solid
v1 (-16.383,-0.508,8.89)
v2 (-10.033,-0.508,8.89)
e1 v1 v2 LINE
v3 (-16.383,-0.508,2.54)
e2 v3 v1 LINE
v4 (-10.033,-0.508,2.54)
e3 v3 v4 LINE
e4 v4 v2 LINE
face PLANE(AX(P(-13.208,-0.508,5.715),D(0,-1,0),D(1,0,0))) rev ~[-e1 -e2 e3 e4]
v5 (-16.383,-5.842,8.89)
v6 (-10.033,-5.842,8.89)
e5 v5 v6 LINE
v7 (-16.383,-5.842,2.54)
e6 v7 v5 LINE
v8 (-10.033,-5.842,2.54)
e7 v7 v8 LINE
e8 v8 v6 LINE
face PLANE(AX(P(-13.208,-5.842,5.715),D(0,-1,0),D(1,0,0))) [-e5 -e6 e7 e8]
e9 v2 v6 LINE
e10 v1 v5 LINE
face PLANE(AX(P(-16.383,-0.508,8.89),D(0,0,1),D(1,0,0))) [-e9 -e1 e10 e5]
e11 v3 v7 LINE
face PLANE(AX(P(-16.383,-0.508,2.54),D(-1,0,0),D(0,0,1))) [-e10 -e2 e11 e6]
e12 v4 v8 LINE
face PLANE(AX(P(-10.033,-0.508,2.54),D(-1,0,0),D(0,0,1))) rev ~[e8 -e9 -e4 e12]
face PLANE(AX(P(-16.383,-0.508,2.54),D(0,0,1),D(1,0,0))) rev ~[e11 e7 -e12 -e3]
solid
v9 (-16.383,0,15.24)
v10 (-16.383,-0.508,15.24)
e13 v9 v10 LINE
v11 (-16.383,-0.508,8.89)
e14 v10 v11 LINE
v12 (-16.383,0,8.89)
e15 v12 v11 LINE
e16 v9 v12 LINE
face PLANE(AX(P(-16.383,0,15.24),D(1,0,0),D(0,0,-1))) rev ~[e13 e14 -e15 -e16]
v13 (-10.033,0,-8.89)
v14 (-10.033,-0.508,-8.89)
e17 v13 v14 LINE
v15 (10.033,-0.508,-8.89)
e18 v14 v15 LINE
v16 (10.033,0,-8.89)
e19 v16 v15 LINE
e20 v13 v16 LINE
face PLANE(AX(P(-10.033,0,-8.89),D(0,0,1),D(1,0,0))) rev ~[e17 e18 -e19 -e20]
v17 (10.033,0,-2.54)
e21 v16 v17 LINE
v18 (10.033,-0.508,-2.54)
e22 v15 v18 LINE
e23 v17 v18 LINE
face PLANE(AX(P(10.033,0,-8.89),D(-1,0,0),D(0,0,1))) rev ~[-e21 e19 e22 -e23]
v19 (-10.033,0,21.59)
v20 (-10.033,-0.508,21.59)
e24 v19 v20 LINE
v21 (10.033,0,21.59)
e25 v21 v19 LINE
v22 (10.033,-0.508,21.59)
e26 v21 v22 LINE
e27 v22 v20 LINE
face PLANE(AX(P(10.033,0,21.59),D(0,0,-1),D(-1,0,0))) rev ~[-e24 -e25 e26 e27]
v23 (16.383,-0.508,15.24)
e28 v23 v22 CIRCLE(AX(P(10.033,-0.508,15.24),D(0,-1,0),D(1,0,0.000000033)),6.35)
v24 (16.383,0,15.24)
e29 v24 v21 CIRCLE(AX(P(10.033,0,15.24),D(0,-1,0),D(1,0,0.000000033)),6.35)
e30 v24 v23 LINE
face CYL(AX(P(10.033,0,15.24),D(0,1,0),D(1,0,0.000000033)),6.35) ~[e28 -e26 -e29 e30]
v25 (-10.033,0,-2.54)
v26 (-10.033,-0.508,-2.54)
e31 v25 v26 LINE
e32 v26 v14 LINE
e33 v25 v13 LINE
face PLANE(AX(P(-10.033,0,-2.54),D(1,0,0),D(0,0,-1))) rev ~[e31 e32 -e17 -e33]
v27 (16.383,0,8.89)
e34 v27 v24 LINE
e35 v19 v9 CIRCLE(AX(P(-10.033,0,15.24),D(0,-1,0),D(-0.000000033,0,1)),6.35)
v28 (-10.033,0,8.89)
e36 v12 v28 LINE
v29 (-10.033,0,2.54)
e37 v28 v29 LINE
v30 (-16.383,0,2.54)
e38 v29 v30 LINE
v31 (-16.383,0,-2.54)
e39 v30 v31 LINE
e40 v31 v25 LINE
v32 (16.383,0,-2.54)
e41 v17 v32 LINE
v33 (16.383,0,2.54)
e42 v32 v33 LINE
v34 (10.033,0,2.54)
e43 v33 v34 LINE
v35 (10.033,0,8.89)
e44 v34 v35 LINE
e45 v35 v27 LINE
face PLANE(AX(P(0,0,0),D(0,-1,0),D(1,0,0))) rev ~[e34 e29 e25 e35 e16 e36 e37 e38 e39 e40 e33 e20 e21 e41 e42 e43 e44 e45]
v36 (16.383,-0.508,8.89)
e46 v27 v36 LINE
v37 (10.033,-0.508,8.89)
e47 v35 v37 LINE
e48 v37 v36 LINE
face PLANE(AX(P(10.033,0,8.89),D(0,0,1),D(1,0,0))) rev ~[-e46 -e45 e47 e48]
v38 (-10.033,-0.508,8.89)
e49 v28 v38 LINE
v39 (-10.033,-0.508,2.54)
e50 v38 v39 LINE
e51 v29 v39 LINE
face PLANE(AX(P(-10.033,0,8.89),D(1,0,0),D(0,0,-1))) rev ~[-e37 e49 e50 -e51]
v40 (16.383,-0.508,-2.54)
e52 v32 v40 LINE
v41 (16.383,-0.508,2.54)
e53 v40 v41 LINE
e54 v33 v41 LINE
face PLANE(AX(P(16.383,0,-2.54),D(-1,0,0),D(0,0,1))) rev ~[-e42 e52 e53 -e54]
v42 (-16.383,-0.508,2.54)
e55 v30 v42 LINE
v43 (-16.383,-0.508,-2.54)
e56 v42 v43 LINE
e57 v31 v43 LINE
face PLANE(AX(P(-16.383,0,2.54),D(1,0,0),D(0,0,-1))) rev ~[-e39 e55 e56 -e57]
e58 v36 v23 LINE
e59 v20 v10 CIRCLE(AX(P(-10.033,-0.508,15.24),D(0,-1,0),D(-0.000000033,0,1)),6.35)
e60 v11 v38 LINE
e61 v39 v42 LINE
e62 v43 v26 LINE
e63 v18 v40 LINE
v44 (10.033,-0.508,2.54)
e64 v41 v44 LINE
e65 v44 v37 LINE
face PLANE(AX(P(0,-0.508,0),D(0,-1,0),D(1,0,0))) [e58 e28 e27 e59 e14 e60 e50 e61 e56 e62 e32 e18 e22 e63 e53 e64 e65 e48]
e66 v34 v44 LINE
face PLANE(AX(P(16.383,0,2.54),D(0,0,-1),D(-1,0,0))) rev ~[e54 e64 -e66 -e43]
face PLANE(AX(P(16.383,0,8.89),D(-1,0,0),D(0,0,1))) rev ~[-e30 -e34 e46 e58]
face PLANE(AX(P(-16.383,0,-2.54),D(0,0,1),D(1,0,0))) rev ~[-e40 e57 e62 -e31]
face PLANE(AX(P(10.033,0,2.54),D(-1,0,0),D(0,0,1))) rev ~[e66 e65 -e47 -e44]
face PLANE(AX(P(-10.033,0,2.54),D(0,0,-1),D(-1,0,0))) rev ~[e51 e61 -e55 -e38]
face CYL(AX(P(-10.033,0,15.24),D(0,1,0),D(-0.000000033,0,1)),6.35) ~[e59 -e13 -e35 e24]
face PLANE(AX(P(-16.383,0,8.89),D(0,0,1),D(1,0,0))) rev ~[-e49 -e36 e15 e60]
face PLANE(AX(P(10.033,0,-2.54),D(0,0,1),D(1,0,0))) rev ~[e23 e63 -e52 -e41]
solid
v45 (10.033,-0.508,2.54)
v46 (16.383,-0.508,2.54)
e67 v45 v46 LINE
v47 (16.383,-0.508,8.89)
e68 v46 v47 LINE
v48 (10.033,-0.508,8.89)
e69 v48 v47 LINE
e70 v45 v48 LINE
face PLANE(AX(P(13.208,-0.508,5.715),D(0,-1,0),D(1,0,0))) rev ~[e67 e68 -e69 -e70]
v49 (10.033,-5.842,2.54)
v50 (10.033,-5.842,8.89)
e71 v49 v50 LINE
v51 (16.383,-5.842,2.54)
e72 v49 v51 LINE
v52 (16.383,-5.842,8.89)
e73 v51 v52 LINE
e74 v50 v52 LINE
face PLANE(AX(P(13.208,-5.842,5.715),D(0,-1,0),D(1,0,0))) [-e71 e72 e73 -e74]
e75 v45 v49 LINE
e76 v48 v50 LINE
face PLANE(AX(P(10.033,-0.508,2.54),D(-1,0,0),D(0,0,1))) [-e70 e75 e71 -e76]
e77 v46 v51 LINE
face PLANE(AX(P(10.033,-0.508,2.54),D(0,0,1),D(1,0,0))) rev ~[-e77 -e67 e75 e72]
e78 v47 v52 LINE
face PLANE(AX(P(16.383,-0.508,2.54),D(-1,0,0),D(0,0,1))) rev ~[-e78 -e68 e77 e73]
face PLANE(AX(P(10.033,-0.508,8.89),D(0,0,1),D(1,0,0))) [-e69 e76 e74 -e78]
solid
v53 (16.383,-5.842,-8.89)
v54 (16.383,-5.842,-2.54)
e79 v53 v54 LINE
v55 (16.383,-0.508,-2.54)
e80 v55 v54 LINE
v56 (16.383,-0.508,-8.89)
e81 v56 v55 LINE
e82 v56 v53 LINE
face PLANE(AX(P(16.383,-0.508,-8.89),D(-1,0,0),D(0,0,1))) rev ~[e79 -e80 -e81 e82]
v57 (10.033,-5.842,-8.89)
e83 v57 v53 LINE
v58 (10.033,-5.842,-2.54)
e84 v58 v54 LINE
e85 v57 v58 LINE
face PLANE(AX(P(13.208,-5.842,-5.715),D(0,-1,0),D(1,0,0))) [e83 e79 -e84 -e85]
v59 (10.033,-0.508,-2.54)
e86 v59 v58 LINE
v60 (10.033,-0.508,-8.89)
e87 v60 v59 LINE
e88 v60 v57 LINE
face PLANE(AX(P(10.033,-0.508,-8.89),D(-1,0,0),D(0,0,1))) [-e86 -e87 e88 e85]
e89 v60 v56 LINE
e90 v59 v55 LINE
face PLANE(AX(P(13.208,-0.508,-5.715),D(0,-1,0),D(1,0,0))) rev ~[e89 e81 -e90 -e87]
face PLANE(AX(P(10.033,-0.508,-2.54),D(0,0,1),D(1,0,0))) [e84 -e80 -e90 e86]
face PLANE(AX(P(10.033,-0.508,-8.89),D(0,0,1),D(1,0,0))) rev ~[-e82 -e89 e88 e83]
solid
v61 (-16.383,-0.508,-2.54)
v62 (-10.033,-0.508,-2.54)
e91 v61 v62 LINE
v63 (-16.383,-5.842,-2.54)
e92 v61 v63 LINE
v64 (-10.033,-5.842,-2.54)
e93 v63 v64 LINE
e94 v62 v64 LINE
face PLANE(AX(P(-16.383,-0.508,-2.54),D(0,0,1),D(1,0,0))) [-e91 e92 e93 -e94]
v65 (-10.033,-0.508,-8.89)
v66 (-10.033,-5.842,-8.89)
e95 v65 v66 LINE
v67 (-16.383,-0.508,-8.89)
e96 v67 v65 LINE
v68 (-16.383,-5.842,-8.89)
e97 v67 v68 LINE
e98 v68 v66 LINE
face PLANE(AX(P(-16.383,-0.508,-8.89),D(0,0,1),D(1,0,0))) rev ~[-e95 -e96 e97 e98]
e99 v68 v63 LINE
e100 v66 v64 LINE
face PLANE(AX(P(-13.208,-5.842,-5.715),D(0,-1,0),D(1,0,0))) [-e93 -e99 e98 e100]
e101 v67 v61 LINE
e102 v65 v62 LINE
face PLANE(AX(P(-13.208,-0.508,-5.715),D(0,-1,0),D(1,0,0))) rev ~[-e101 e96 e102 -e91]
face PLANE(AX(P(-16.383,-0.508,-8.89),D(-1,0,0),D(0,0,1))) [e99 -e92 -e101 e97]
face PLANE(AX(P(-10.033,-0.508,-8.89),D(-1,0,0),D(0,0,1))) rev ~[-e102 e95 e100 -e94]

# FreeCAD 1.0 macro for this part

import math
import FreeCAD as App
import Part
import Sketcher
from FreeCAD import Vector
Q = App.Units.Quantity


def add_polygon(sketch, points):
    """Adds a closed chain of lines whose ends are joined by coincident constraints."""
    first, n = sketch.GeometryCount, len(points)
    for a, b in zip(points, points[1:] + points[:1]):
        sketch.addGeometry(Part.LineSegment(App.Vector(*a, 0), App.Vector(*b, 0)), False)
    for i in range(n):
        sketch.addConstraint(Sketcher.Constraint("Coincident", first + i, 2, first + (i + 1) % n, 1))

doc = App.newDocument("Part")
body = doc.addObject("PartDesign::Body", "Body")

# Sketch on XZ plane
sketch1 = doc.addObject("Sketcher::SketchObject", "Sketch")
body.addObject(sketch1)
sketch1.AttachmentSupport = (doc.XZ_Plane, [""])
sketch1.MapMode = "FlatFace"
sketch1.addGeometry([
    Part.LineSegment(Vector(10, 3, 0), Vector(10, 9, 0)),  # 0
    Part.LineSegment(Vector(10, 9, 0), Vector(16, 9, 0)),  # 1
    Part.LineSegment(Vector(16, 9, 0), Vector(16, 15, 0)),  # 2
    Part.ArcOfCircle(Part.Circle(Vector(10, 15, 0), Vector(0, 0, 1), 6), math.radians(0), math.radians(90)),  # 3
    Part.LineSegment(Vector(10, 22, 0), Vector(-10, 22, 0)),  # 4
    Part.ArcOfCircle(Part.Circle(Vector(-10, 15, 0), Vector(0, 0, 1), 6), math.radians(90), math.radians(180)),  # 5
    Part.LineSegment(Vector(-16, 15, 0), Vector(-16, 9, 0)),  # 6
    Part.LineSegment(Vector(-16, 9, 0), Vector(-10, 9, 0)),  # 7
    Part.LineSegment(Vector(-10, 9, 0), Vector(-10, 3, 0)),  # 8
    Part.LineSegment(Vector(-10, 3, 0), Vector(-16, 3, 0)),  # 9
    Part.LineSegment(Vector(-16, 3, 0), Vector(-16, -3, 0)),  # 10
    Part.LineSegment(Vector(-16, -3, 0), Vector(-10, -3, 0)),  # 11
    Part.LineSegment(Vector(-10, -3, 0), Vector(-10, -9, 0)),  # 12
    Part.LineSegment(Vector(-10, -9, 0), Vector(10, -9, 0)),  # 13
    Part.LineSegment(Vector(10, -9, 0), Vector(10, -3, 0)),  # 14
    Part.LineSegment(Vector(10, -3, 0), Vector(16, -3, 0)),  # 15
    Part.LineSegment(Vector(16, -3, 0), Vector(16, 3, 0)),  # 16
    Part.LineSegment(Vector(16, 3, 0), Vector(10, 3, 0)),  # 17
], False)
sketch1.addConstraint([
    Sketcher.Constraint("Coincident", 0, 2, 1, 1),
    Sketcher.Constraint("Coincident", 1, 2, 2, 1),
    Sketcher.Constraint("Tangent", 2, 2, 3, 1),
    Sketcher.Constraint("Tangent", 3, 2, 4, 1),
    Sketcher.Constraint("Tangent", 4, 2, 5, 1),
    Sketcher.Constraint("Tangent", 5, 2, 6, 1),
    Sketcher.Constraint("Coincident", 6, 2, 7, 1),
    Sketcher.Constraint("Coincident", 7, 2, 8, 1),
    Sketcher.Constraint("Coincident", 8, 2, 9, 1),
    Sketcher.Constraint("Coincident", 9, 2, 10, 1),
    Sketcher.Constraint("Coincident", 10, 2, 11, 1),
    Sketcher.Constraint("Coincident", 11, 2, 12, 1),
    Sketcher.Constraint("Coincident", 12, 2, 13, 1),
    Sketcher.Constraint("Coincident", 13, 2, 14, 1),
    Sketcher.Constraint("Coincident", 14, 2, 15, 1),
    Sketcher.Constraint("Coincident", 15, 2, 16, 1),
    Sketcher.Constraint("Coincident", 16, 2, 17, 1),
    Sketcher.Constraint("Coincident", 17, 2, 0, 1),
    Sketcher.Constraint("Vertical", 0),
    Sketcher.Constraint("Horizontal", 1),
    Sketcher.Constraint("Vertical", 2),
    Sketcher.Constraint("Horizontal", 4),
    Sketcher.Constraint("Vertical", 6),
    Sketcher.Constraint("Horizontal", 7),
    Sketcher.Constraint("Vertical", 8),
    Sketcher.Constraint("Horizontal", 9),
    Sketcher.Constraint("Vertical", 10),
    Sketcher.Constraint("Horizontal", 11),
    Sketcher.Constraint("Vertical", 12),
    Sketcher.Constraint("Horizontal", 13),
    Sketcher.Constraint("Vertical", 14),
    Sketcher.Constraint("Horizontal", 15),
    Sketcher.Constraint("Vertical", 16),
    Sketcher.Constraint("Horizontal", 17),
    Sketcher.Constraint("Equal", 3, 5),
    Sketcher.Constraint("Symmetric", 0, 2, 12, 2, -1, 1),
    Sketcher.Constraint("Symmetric", 7, 2, 13, 2, -1, 1),
    Sketcher.Constraint("Symmetric", 9, 2, 15, 2, -1, 1),
    Sketcher.Constraint("Symmetric", 11, 2, 14, 2, -2),
    Sketcher.Constraint("Horizontal", 9, 2, 16, 2),
    Sketcher.Constraint("Vertical", 3, 3, 0, 2),
    Sketcher.Constraint("Vertical", 4, 2, 7, 2),
    Sketcher.Constraint("Vertical", 6, 2, 9, 2),
    Sketcher.Constraint("Equal", 17, 0),
    Sketcher.Constraint("Equal", 0, 2),
    Sketcher.Constraint("Radius", 3, Q("0.25 in")),
    Sketcher.Constraint("DistanceY", 10, 2, 10, 1, Q("0.2 in")),
    Sketcher.Constraint("DistanceX", 4, 2, 4, 1, Q("0.79 in")),
])
pad1 = doc.addObject("PartDesign::Pad", "Pad")
body.addObject(pad1)
pad1.Profile = sketch1
pad1.Length = Q("0.02 in")
body2 = doc.addObject("PartDesign::Body", "Body001")
body2.AllowCompound = True

# Sketch on XZ plane
sketch2 = doc.addObject("Sketcher::SketchObject", "Sketch001")
body2.addObject(sketch2)
sketch2.AttachmentSupport = (doc.getObject("XZ_Plane001"), [""])
sketch2.MapMode = "FlatFace"
sketch2.AttachmentOffset = App.Placement(Vector(0, 0, 0.02 * 25.4), App.Rotation())
add_polygon(sketch2, [(-16, 9), (-16, 3), (-10, 3), (-10, 9)])  # lines 0-3
add_polygon(sketch2, [(-16, -3), (-16, -9), (-10, -9), (-10, -3)])  # lines 4-7
add_polygon(sketch2, [(10, -3), (10, -9), (16, -9), (16, -3)])  # lines 8-11
add_polygon(sketch2, [(10, 9), (10, 3), (16, 3), (16, 9)])  # lines 12-15
sketch2.addConstraint([
    Sketcher.Constraint("Vertical", 0),
    Sketcher.Constraint("Horizontal", 1),
    Sketcher.Constraint("Vertical", 2),
    Sketcher.Constraint("Horizontal", 3),
    Sketcher.Constraint("Vertical", 4),
    Sketcher.Constraint("Horizontal", 5),
    Sketcher.Constraint("Vertical", 6),
    Sketcher.Constraint("Horizontal", 7),
    Sketcher.Constraint("Vertical", 8),
    Sketcher.Constraint("Horizontal", 9),
    Sketcher.Constraint("Vertical", 10),
    Sketcher.Constraint("Horizontal", 11),
    Sketcher.Constraint("Vertical", 12),
    Sketcher.Constraint("Horizontal", 13),
    Sketcher.Constraint("Vertical", 14),
    Sketcher.Constraint("Horizontal", 15),
    Sketcher.Constraint("Symmetric", 2, 2, 8, 2, -1, 1),
    Sketcher.Constraint("Symmetric", 0, 2, 10, 2, -1, 1),
    Sketcher.Constraint("Symmetric", 6, 2, 12, 2, -1, 1),
    Sketcher.Constraint("Symmetric", 4, 2, 14, 2, -1, 1),
    Sketcher.Constraint("Symmetric", 5, 2, 8, 2, -2),
    Sketcher.Constraint("Symmetric", 7, 2, 10, 2, -2),
    Sketcher.Constraint("Equal", 15, 0),
    Sketcher.Constraint("DistanceX", 1, 1, 1, 2, Q("0.25 in")),
    Sketcher.Constraint("DistanceY", -1, 1, 0, 2, Q("0.1 in")),
    Sketcher.Constraint("DistanceX", 5, 2, 8, 2, Q("0.79 in")),
])
pad2 = doc.addObject("PartDesign::Pad", "Pad001")
body2.addObject(pad2)
pad2.Profile = sketch2
pad2.Length = Q("0.21 in")

doc.recompute()
